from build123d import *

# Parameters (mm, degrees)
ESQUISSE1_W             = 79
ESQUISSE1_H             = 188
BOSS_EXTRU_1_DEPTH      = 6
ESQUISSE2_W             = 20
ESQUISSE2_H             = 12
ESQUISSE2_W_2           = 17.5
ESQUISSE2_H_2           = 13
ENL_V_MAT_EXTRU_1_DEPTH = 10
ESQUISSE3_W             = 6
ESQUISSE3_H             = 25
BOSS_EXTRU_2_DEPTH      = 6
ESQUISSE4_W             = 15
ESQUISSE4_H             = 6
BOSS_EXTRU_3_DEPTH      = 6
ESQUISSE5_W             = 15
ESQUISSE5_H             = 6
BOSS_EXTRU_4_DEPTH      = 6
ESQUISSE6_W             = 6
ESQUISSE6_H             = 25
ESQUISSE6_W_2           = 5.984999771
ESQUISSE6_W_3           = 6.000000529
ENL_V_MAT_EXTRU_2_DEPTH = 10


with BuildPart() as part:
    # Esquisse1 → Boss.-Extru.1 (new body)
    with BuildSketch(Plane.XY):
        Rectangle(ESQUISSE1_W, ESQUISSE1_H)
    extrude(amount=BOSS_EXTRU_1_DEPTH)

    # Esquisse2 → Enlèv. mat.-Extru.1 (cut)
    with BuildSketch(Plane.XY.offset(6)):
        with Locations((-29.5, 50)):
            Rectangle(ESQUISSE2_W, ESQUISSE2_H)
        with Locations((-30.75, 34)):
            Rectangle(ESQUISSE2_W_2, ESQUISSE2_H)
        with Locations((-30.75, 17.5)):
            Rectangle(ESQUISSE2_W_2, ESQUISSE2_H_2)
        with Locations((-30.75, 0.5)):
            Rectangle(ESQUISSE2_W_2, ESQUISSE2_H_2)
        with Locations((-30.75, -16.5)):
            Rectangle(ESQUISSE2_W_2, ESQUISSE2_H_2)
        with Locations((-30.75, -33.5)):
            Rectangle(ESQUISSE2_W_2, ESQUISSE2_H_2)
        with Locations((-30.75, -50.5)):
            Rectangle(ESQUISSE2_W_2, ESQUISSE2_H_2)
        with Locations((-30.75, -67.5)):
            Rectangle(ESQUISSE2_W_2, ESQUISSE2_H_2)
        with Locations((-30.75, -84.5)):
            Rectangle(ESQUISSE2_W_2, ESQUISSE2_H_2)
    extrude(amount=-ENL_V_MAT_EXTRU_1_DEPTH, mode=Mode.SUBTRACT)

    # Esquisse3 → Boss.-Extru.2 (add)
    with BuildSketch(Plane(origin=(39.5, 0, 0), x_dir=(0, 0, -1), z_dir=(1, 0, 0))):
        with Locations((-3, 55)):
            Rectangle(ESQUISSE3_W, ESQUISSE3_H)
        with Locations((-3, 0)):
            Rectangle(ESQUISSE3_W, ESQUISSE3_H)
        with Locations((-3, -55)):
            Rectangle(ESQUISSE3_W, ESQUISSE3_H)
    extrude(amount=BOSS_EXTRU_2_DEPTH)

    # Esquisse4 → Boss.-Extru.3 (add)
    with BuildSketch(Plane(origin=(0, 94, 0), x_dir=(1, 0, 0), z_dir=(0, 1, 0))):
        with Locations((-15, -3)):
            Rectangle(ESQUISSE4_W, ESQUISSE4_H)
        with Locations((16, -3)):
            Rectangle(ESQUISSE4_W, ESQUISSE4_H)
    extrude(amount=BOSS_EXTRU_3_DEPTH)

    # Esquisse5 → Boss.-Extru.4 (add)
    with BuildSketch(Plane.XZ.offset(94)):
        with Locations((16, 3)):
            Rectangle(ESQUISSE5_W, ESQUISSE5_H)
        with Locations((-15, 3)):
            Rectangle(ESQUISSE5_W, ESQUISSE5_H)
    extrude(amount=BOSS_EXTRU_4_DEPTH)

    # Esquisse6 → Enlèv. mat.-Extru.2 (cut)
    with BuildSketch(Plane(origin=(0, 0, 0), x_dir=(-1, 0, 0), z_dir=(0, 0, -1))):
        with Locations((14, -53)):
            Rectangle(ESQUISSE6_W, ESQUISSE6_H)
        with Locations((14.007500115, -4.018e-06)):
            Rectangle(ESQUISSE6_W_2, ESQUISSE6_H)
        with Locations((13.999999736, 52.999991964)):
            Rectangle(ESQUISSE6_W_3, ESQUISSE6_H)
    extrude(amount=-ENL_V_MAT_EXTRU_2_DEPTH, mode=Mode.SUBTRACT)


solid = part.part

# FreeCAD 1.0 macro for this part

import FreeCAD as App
import Part
import Sketcher

V = App.Vector
Q = App.Units.Quantity


def add_polygon(sketch, points):
    """Adds a closed chain of lines whose ends are joined by coincident constraints."""
    first, n = sketch.GeometryCount, len(points)
    for a, b in zip(points, points[1:] + points[:1]):
        sketch.addGeometry(Part.LineSegment(App.Vector(*a, 0), App.Vector(*b, 0)), False)
    for i in range(n):
        sketch.addConstraint(Sketcher.Constraint("Coincident", first + i, 2, first + (i + 1) % n, 1))

doc = App.newDocument("Part")
body = doc.addObject("PartDesign::Body", "Body")

# Sketch on XY plane
sketch1 = body.newObject("Sketcher::SketchObject", "Sketch")
sketch1.AttachmentSupport = (doc.getObject("XY_Plane"), [""])
sketch1.MapMode = "FlatFace"
add_polygon(sketch1, [(-40, 94), (-40, -94), (40, -94), (40, 94)])  # lines 0-3
sketch1.addConstraint(Sketcher.Constraint("Vertical", 0))
sketch1.addConstraint(Sketcher.Constraint("Horizontal", 1))
sketch1.addConstraint(Sketcher.Constraint("Vertical", 2))
sketch1.addConstraint(Sketcher.Constraint("Horizontal", 3))
sketch1.addConstraint(Sketcher.Constraint("Symmetric", 0, 2, 2, 2, -1, 1))
sketch1.addConstraint(Sketcher.Constraint("DistanceX", 1, 1, 1, 2, Q("79 mm")))
sketch1.addConstraint(Sketcher.Constraint("DistanceY", 0, 2, 0, 1, Q("188 mm")))
pad1 = body.newObject("PartDesign::Pad", "Pad")
pad1.Profile = sketch1
pad1.Length = 6

# Sketch on XY plane
sketch2 = body.newObject("Sketcher::SketchObject", "Sketch001")
sketch2.AttachmentSupport = (doc.getObject("XY_Plane"), [""])
sketch2.MapMode = "FlatFace"
sketch2.AttachmentOffset = App.Placement(V(0, 0, 6), App.Rotation())
add_polygon(sketch2, [(-40, 56), (-40, 44), (-20, 44), (-20, 56)])  # lines 0-3
add_polygon(sketch2, [(-40, 40), (-40, 28), (-22, 28), (-22, 40)])  # lines 4-7
add_polygon(sketch2, [(-40, 24), (-40, 11), (-22, 11), (-22, 24)])  # lines 8-11
add_polygon(sketch2, [(-40, 7), (-40, -6), (-22, -6), (-22, 7)])  # lines 12-15
add_polygon(sketch2, [(-40, -10), (-40, -23), (-22, -23), (-22, -10)])  # lines 16-19
add_polygon(sketch2, [(-40, -27), (-40, -40), (-22, -40), (-22, -27)])  # lines 20-23
add_polygon(sketch2, [(-40, -44), (-40, -57), (-22, -57), (-22, -44)])  # lines 24-27
add_polygon(sketch2, [(-40, -61), (-40, -74), (-22, -74), (-22, -61)])  # lines 28-31
add_polygon(sketch2, [(-40, -78), (-40, -91), (-22, -91), (-22, -78)])  # lines 32-35
sketch2.addConstraint(Sketcher.Constraint("Vertical", 0))
sketch2.addConstraint(Sketcher.Constraint("Horizontal", 1))
sketch2.addConstraint(Sketcher.Constraint("Vertical", 2))
sketch2.addConstraint(Sketcher.Constraint("Horizontal", 3))
sketch2.addConstraint(Sketcher.Constraint("Vertical", 4))
sketch2.addConstraint(Sketcher.Constraint("Horizontal", 5))
sketch2.addConstraint(Sketcher.Constraint("Vertical", 6))
sketch2.addConstraint(Sketcher.Constraint("Horizontal", 7))
sketch2.addConstraint(Sketcher.Constraint("Vertical", 8))
sketch2.addConstraint(Sketcher.Constraint("Horizontal", 9))
sketch2.addConstraint(Sketcher.Constraint("Vertical", 10))
sketch2.addConstraint(Sketcher.Constraint("Horizontal", 11))
sketch2.addConstraint(Sketcher.Constraint("Vertical", 12))
sketch2.addConstraint(Sketcher.Constraint("Horizontal", 13))
sketch2.addConstraint(Sketcher.Constraint("Vertical", 14))
sketch2.addConstraint(Sketcher.Constraint("Horizontal", 15))
sketch2.addConstraint(Sketcher.Constraint("Vertical", 16))
sketch2.addConstraint(Sketcher.Constraint("Horizontal", 17))
sketch2.addConstraint(Sketcher.Constraint("Vertical", 18))
sketch2.addConstraint(Sketcher.Constraint("Horizontal", 19))
sketch2.addConstraint(Sketcher.Constraint("Vertical", 20))
sketch2.addConstraint(Sketcher.Constraint("Horizontal", 21))
sketch2.addConstraint(Sketcher.Constraint("Vertical", 22))
sketch2.addConstraint(Sketcher.Constraint("Horizontal", 23))
sketch2.addConstraint(Sketcher.Constraint("Vertical", 24))
sketch2.addConstraint(Sketcher.Constraint("Horizontal", 25))
sketch2.addConstraint(Sketcher.Constraint("Vertical", 26))
sketch2.addConstraint(Sketcher.Constraint("Horizontal", 27))
sketch2.addConstraint(Sketcher.Constraint("Vertical", 28))
sketch2.addConstraint(Sketcher.Constraint("Horizontal", 29))
sketch2.addConstraint(Sketcher.Constraint("Vertical", 30))
sketch2.addConstraint(Sketcher.Constraint("Horizontal", 31))
sketch2.addConstraint(Sketcher.Constraint("Vertical", 32))
sketch2.addConstraint(Sketcher.Constraint("Horizontal", 33))
sketch2.addConstraint(Sketcher.Constraint("Vertical", 34))
sketch2.addConstraint(Sketcher.Constraint("Horizontal", 35))
sketch2.addConstraint(Sketcher.Constraint("Symmetric", 7, 2, 20, 2, -1))
sketch2.addConstraint(Sketcher.Constraint("Symmetric", 0, 2, 27, 2, -1))
sketch2.addConstraint(Sketcher.Constraint("Vertical", 3, 2, 4, 2))
sketch2.addConstraint(Sketcher.Constraint("Vertical", 7, 2, 8, 2))
sketch2.addConstraint(Sketcher.Constraint("Vertical", 6, 2, 9, 2))
sketch2.addConstraint(Sketcher.Constraint("Vertical", 11, 2, 12, 2))
sketch2.addConstraint(Sketcher.Constraint("Vertical", 10, 2, 13, 2))
sketch2.addConstraint(Sketcher.Constraint("Vertical", 15, 2, 16, 2))
sketch2.addConstraint(Sketcher.Constraint("Vertical", 14, 2, 17, 2))
sketch2.addConstraint(Sketcher.Constraint("Vertical", 18, 2, 21, 2))
sketch2.addConstraint(Sketcher.Constraint("Vertical", 22, 2, 25, 2))
sketch2.addConstraint(Sketcher.Constraint("Vertical", 27, 2, 28, 2))
sketch2.addConstraint(Sketcher.Constraint("Vertical", 26, 2, 29, 2))
sketch2.addConstraint(Sketcher.Constraint("Vertical", 31, 2, 32, 2))
sketch2.addConstraint(Sketcher.Constraint("Vertical", 30, 2, 33, 2))
sketch2.addConstraint(Sketcher.Constraint("Equal", 2, 4))
sketch2.addConstraint(Sketcher.Constraint("Equal", 10, 12))
sketch2.addConstraint(Sketcher.Constraint("Equal", 14, 16))
sketch2.addConstraint(Sketcher.Constraint("Equal", 18, 20))
sketch2.addConstraint(Sketcher.Constraint("Equal", 22, 24))
sketch2.addConstraint(Sketcher.Constraint("Equal", 26, 28))
sketch2.addConstraint(Sketcher.Constraint("Equal", 30, 32))
sketch2.addConstraint(Sketcher.Constraint("DistanceX", 1, 1, 1, 2, Q("20 mm")))
sketch2.addConstraint(Sketcher.Constraint("DistanceY", 0, 2, 0, 1, Q("12 mm")))
sketch2.addConstraint(Sketcher.Constraint("DistanceY", 8, 2, 8, 1, Q("13 mm")))
sketch2.addConstraint(Sketcher.Constraint("DistanceX", 5, 1, 5, 2, Q("17.5 mm")))
sketch2.addConstraint(Sketcher.Constraint("DistanceY", -1, 1, 0, 2, Q("44 mm")))
sketch2.addConstraint(Sketcher.Constraint("DistanceY", -1, 1, 4, 2, Q("28 mm")))
sketch2.addConstraint(Sketcher.Constraint("DistanceX", 5, 2, -1, 1, Q("22 mm")))
sketch2.addConstraint(Sketcher.Constraint("DistanceY", -1, 1, 8, 2, Q("11 mm")))
sketch2.addConstraint(Sketcher.Constraint("DistanceY", 12, 2, -1, 1, Q("6 mm")))
sketch2.addConstraint(Sketcher.Constraint("DistanceY", 16, 2, -1, 1, Q("23 mm")))
sketch2.addConstraint(Sketcher.Constraint("DistanceY", 28, 2, -1, 1, Q("74 mm")))
sketch2.addConstraint(Sketcher.Constraint("DistanceY", 32, 2, -1, 1, Q("91 mm")))
pocket1 = body.newObject("PartDesign::Pocket", "Pocket")
pocket1.Profile = sketch2
pocket1.Length = 10

# Sketch on YZ plane
sketch3 = body.newObject("Sketcher::SketchObject", "Sketch002")
sketch3.AttachmentSupport = (doc.getObject("YZ_Plane"), [""])
sketch3.MapMode = "FlatFace"
sketch3.AttachmentOffset = App.Placement(V(0, 0, 39.5), App.Rotation())
add_polygon(sketch3, [(68, 6), (42, 6), (42, 0), (68, 0)])  # lines 0-3
add_polygon(sketch3, [(12, 6), (-12, 6), (-12, 0), (12, 0)])  # lines 4-7
add_polygon(sketch3, [(-42, 6), (-68, 6), (-68, 0), (-42, 0)])  # lines 8-11
sketch3.addConstraint(Sketcher.Constraint("Horizontal", 0))
sketch3.addConstraint(Sketcher.Constraint("Vertical", 1))
sketch3.addConstraint(Sketcher.Constraint("Horizontal", 2))
sketch3.addConstraint(Sketcher.Constraint("Vertical", 3))
sketch3.addConstraint(Sketcher.Constraint("Horizontal", 4))
sketch3.addConstraint(Sketcher.Constraint("Vertical", 5))
sketch3.addConstraint(Sketcher.Constraint("Horizontal", 6))
sketch3.addConstraint(Sketcher.Constraint("Vertical", 7))
sketch3.addConstraint(Sketcher.Constraint("Horizontal", 8))
sketch3.addConstraint(Sketcher.Constraint("Vertical", 9))
sketch3.addConstraint(Sketcher.Constraint("Horizontal", 10))
sketch3.addConstraint(Sketcher.Constraint("Vertical", 11))
sketch3.addConstraint(Sketcher.Constraint("Symmetric", 5, 2, 6, 2, -1, 1))
sketch3.addConstraint(Sketcher.Constraint("Symmetric", 2, 2, 9, 2, -1, 1))
sketch3.addConstraint(Sketcher.Constraint("Symmetric", 1, 2, 10, 2, -2))
sketch3.addConstraint(Sketcher.Constraint("Horizontal", 3, 2, 4, 2))
sketch3.addConstraint(Sketcher.Constraint("Horizontal", 7, 2, 8, 2))
sketch3.addConstraint(Sketcher.Constraint("Equal", 2, 4))
sketch3.addConstraint(Sketcher.Constraint("DistanceX", 0, 2, 0, 1, Q("25 mm")))
sketch3.addConstraint(Sketcher.Constraint("DistanceY", 1, 2, 1, 1, Q("6 mm")))
sketch3.addConstraint(Sketcher.Constraint("DistanceX", 4, 2, 0, 2, Q("55 mm")))
pad2 = body.newObject("PartDesign::Pad", "Pad001")
pad2.Profile = sketch3
pad2.Length = 6

# Sketch on XZ plane
sketch4 = body.newObject("Sketcher::SketchObject", "Sketch003")
sketch4.AttachmentSupport = (doc.getObject("XZ_Plane"), [""])
sketch4.MapMode = "FlatFace"
sketch4.AttachmentOffset = App.Placement(V(0, 0, -94), App.Rotation())
add_polygon(sketch4, [(-22, 0), (-22, 6), (-8, 6), (-8, 0)])  # lines 0-3
add_polygon(sketch4, [(8, 0), (8, 6), (24, 6), (24, 0)])  # lines 4-7
sketch4.addConstraint(Sketcher.Constraint("Vertical", 0))
sketch4.addConstraint(Sketcher.Constraint("Horizontal", 1))
sketch4.addConstraint(Sketcher.Constraint("Vertical", 2))
sketch4.addConstraint(Sketcher.Constraint("Horizontal", 3))
sketch4.addConstraint(Sketcher.Constraint("Vertical", 4))
sketch4.addConstraint(Sketcher.Constraint("Horizontal", 5))
sketch4.addConstraint(Sketcher.Constraint("Vertical", 6))
sketch4.addConstraint(Sketcher.Constraint("Horizontal", 7))
sketch4.addConstraint(Sketcher.Constraint("PointOnObject", 2, 2, -1))
sketch4.addConstraint(Sketcher.Constraint("PointOnObject", 6, 2, -1))
sketch4.addConstraint(Sketcher.Constraint("Horizontal", 1, 2, 4, 2))
sketch4.addConstraint(Sketcher.Constraint("Equal", 3, 5))
sketch4.addConstraint(Sketcher.Constraint("DistanceX", 1, 1, 1, 2, Q("15 mm")))
sketch4.addConstraint(Sketcher.Constraint("DistanceY", 0, 1, 0, 2, Q("6 mm")))
sketch4.addConstraint(Sketcher.Constraint("DistanceX", 1, 2, 4, 2, Q("16 mm")))
sketch4.addConstraint(Sketcher.Constraint("DistanceX", 0, 2, -1, 1, Q("22.5 mm")))
pad3 = body.newObject("PartDesign::Pad", "Pad002")
pad3.Profile = sketch4
pad3.Length = 6
pad3.Reversed = True

# Sketch on XZ plane
sketch5 = body.newObject("Sketcher::SketchObject", "Sketch004")
sketch5.AttachmentSupport = (doc.getObject("XZ_Plane"), [""])
sketch5.MapMode = "FlatFace"
sketch5.AttachmentOffset = App.Placement(V(0, 0, 94), App.Rotation())
add_polygon(sketch5, [(8, 6), (8, 0), (24, 0), (24, 6)])  # lines 0-3
add_polygon(sketch5, [(-22, 6), (-22, 0), (-8, 0), (-8, 6)])  # lines 4-7
sketch5.addConstraint(Sketcher.Constraint("Vertical", 0))
sketch5.addConstraint(Sketcher.Constraint("Horizontal", 1))
sketch5.addConstraint(Sketcher.Constraint("Vertical", 2))
sketch5.addConstraint(Sketcher.Constraint("Horizontal", 3))
sketch5.addConstraint(Sketcher.Constraint("Vertical", 4))
sketch5.addConstraint(Sketcher.Constraint("Horizontal", 5))
sketch5.addConstraint(Sketcher.Constraint("Vertical", 6))
sketch5.addConstraint(Sketcher.Constraint("Horizontal", 7))
sketch5.addConstraint(Sketcher.Constraint("PointOnObject", 0, 2, -1))
sketch5.addConstraint(Sketcher.Constraint("PointOnObject", 4, 2, -1))
sketch5.addConstraint(Sketcher.Constraint("Horizontal", 3, 2, 6, 2))
sketch5.addConstraint(Sketcher.Constraint("Equal", 3, 5))
sketch5.addConstraint(Sketcher.Constraint("DistanceX", 1, 1, 1, 2, Q("15 mm")))
sketch5.addConstraint(Sketcher.Constraint("DistanceY", 0, 2, 0, 1, Q("6 mm")))
sketch5.addConstraint(Sketcher.Constraint("DistanceX", 4, 2, 0, 2, Q("31 mm")))
sketch5.addConstraint(Sketcher.Constraint("DistanceX", -1, 1, 0, 2, Q("8.5 mm")))
pad4 = body.newObject("PartDesign::Pad", "Pad003")
pad4.Profile = sketch5
pad4.Length = 6

# Sketch on XY plane
sketch6 = body.newObject("Sketcher::SketchObject", "Sketch005")
sketch6.AttachmentSupport = (doc.getObject("XY_Plane"), [""])
sketch6.MapMode = "FlatFace"
add_polygon(sketch6, [(-11, -40), (-11, -66), (-17, -66), (-17, -40)])  # lines 0-3
add_polygon(sketch6, [(-11, 12), (-11, -13), (-17, -13), (-17, 12)])  # lines 4-7
add_polygon(sketch6, [(-11, 65), (-11, 40), (-17, 40), (-17, 65)])  # lines 8-11
sketch6.addConstraint(Sketcher.Constraint("Vertical", 0))
sketch6.addConstraint(Sketcher.Constraint("Horizontal", 1))
sketch6.addConstraint(Sketcher.Constraint("Vertical", 2))
sketch6.addConstraint(Sketcher.Constraint("Horizontal", 3))
sketch6.addConstraint(Sketcher.Constraint("Vertical", 4))
sketch6.addConstraint(Sketcher.Constraint("Horizontal", 5))
sketch6.addConstraint(Sketcher.Constraint("Vertical", 6))
sketch6.addConstraint(Sketcher.Constraint("Horizontal", 7))
sketch6.addConstraint(Sketcher.Constraint("Vertical", 8))
sketch6.addConstraint(Sketcher.Constraint("Horizontal", 9))
sketch6.addConstraint(Sketcher.Constraint("Vertical", 10))
sketch6.addConstraint(Sketcher.Constraint("Horizontal", 11))
sketch6.addConstraint(Sketcher.Constraint("Symmetric", 3, 2, 8, 2, -1))
sketch6.addConstraint(Sketcher.Constraint("Symmetric", 1, 2, 10, 2, -1))
sketch6.addConstraint(Sketcher.Constraint("Vertical", 2, 2, 5, 2))
sketch6.addConstraint(Sketcher.Constraint("Equal", 2, 4))
sketch6.addConstraint(Sketcher.Constraint("DistanceX", 1, 2, 1, 1, Q("6 mm")))
sketch6.addConstraint(Sketcher.Constraint("DistanceY", 0, 2, 0, 1, Q("25 mm")))
sketch6.addConstraint(Sketcher.Constraint("DistanceX", 0, 2, -1, 1, Q("11 mm")))
sketch6.addConstraint(Sketcher.Constraint("DistanceY", 0, 2, -1, 1, Q("65.5 mm")))
sketch6.addConstraint(Sketcher.Constraint("DistanceX", 5, 2, 5, 1, Q("5.985 mm")))
sketch6.addConstraint(Sketcher.Constraint("DistanceY", 4, 2, -1, 1, Q("12.500004 mm")))
pocket2 = body.newObject("PartDesign::Pocket", "Pocket001")
pocket2.Profile = sketch6
pocket2.Length = 10
pocket2.Reversed = True

doc.recompute()
